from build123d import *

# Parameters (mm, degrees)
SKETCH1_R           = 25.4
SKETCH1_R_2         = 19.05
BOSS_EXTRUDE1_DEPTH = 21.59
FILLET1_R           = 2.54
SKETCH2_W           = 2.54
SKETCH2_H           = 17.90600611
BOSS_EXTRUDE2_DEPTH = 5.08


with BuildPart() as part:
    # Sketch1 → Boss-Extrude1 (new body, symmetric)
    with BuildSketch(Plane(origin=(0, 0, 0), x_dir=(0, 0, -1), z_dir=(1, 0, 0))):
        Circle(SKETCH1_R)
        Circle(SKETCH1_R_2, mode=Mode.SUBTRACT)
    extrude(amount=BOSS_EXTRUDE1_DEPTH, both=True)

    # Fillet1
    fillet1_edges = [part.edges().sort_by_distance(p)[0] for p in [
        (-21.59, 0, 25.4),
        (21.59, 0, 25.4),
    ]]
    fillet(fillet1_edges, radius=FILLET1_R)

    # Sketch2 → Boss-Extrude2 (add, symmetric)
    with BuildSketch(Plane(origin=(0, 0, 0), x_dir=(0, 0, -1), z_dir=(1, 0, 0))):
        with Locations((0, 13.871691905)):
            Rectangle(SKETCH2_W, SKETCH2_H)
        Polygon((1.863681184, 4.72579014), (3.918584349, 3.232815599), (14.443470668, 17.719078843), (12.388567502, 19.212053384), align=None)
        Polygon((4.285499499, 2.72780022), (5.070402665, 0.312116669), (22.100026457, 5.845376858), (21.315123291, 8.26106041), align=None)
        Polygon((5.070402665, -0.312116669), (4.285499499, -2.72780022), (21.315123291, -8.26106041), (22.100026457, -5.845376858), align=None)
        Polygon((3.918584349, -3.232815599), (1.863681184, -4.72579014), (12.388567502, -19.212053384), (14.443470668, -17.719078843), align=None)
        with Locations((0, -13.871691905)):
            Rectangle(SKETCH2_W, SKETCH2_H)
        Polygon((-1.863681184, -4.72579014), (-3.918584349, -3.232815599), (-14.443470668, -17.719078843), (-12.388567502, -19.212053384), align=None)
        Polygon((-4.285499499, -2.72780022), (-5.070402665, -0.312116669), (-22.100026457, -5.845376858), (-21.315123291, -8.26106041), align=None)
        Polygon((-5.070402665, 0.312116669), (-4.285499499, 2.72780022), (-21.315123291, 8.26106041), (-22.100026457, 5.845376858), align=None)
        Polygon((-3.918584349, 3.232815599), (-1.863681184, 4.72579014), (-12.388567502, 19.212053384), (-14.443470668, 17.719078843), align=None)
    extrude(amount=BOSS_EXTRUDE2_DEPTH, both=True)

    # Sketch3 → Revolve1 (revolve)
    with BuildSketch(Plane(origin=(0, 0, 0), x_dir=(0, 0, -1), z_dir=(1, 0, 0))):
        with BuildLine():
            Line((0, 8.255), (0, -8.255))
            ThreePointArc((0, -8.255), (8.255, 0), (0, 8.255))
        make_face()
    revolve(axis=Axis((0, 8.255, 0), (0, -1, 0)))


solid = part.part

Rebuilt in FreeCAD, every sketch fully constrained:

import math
import FreeCAD as App
import Part
import Sketcher
Q = App.Units.Quantity


def edges_at(feature, points):
    """Names of the edges that pass closest to the given points."""
    edges = feature.Shape.Edges
    near = lambda p: min(range(len(edges)), key=lambda i: edges[i].distToShape(Part.Vertex(*p))[0])
    return sorted({f"Edge{near(p) + 1}" for p in points})

doc = App.newDocument("Part")
body = doc.addObject("PartDesign::Body", "Body")

sketch1 = body.newObject("Sketcher::SketchObject", "Sketch")
sketch1.AttachmentSupport = (doc.getObject("YZ_Plane"), [""])
sketch1.MapMode = "FlatFace"
sketch1.addGeometry([
    Part.Circle(App.Vector(0, 0, 0), App.Vector(0, 0, 1), 25),
    Part.Circle(App.Vector(0, 0, 0), App.Vector(0, 0, 1), 19),
], False)
sketch1.addConstraint([
    Sketcher.Constraint("Coincident", 0, 3, -1, 1),
    Sketcher.Constraint("Coincident", 1, 3, -1, 1),
    Sketcher.Constraint("Diameter", 0, Q("2 in")),
    Sketcher.Constraint("Diameter", 1, Q("1.5 in")),
])
pad1 = body.newObject("PartDesign::Pad", "Pad")
pad1.Profile = sketch1
pad1.Length = Q("1.7 in")
pad1.Midplane = True
doc.recompute()

fillet = body.newObject("PartDesign::Fillet", "Fillet")
fillet.Base = (pad1, edges_at(pad1, [(-21.59, 0, 25.4), (21.59, 0, 25.4)]))
fillet.Radius = Q("0.1 in")

sketch2 = body.newObject("Sketcher::SketchObject", "Sketch001")
sketch2.AttachmentSupport = (doc.getObject("YZ_Plane"), [""])
sketch2.MapMode = "FlatFace"
sketch2.addGeometry([
    Part.LineSegment(App.Vector(22.8, 1.3, 0), App.Vector(4.9, 1.3, 0)),
    Part.LineSegment(App.Vector(4.9, 1.3, 0), App.Vector(4.9, -1.3, 0)),
    Part.LineSegment(App.Vector(4.9, -1.3, 0), App.Vector(22.8, -1.3, 0)),
    Part.LineSegment(App.Vector(22.8, -1.3, 0), App.Vector(22.8, 1.3, 0)),
    Part.LineSegment(App.Vector(4.7, -1.9, 0), App.Vector(3.2, -3.9, 0)),
    Part.LineSegment(App.Vector(3.2, -3.9, 0), App.Vector(17.7, -14.4, 0)),
    Part.LineSegment(App.Vector(17.7, -14.4, 0), App.Vector(19.2, -12.4, 0)),
    Part.LineSegment(App.Vector(19.2, -12.4, 0), App.Vector(4.7, -1.9, 0)),
    Part.LineSegment(App.Vector(2.7, -4.3, 0), App.Vector(0.3, -5.1, 0)),
    Part.LineSegment(App.Vector(0.3, -5.1, 0), App.Vector(5.8, -22.1, 0)),
    Part.LineSegment(App.Vector(5.8, -22.1, 0), App.Vector(8.3, -21.3, 0)),
    Part.LineSegment(App.Vector(8.3, -21.3, 0), App.Vector(2.7, -4.3, 0)),
    Part.LineSegment(App.Vector(-0.3, -5.1, 0), App.Vector(-2.7, -4.3, 0)),
    Part.LineSegment(App.Vector(-2.7, -4.3, 0), App.Vector(-8.3, -21.3, 0)),
    Part.LineSegment(App.Vector(-8.3, -21.3, 0), App.Vector(-5.8, -22.1, 0)),
    Part.LineSegment(App.Vector(-5.8, -22.1, 0), App.Vector(-0.3, -5.1, 0)),
    Part.LineSegment(App.Vector(-3.2, -3.9, 0), App.Vector(-4.7, -1.9, 0)),
    Part.LineSegment(App.Vector(-4.7, -1.9, 0), App.Vector(-19.2, -12.4, 0)),
    Part.LineSegment(App.Vector(-19.2, -12.4, 0), App.Vector(-17.7, -14.4, 0)),
    Part.LineSegment(App.Vector(-17.7, -14.4, 0), App.Vector(-3.2, -3.9, 0)),
    Part.LineSegment(App.Vector(-4.9, 1.3, 0), App.Vector(-22.8, 1.3, 0)),
    Part.LineSegment(App.Vector(-22.8, 1.3, 0), App.Vector(-22.8, -1.3, 0)),
    Part.LineSegment(App.Vector(-22.8, -1.3, 0), App.Vector(-4.9, -1.3, 0)),
    Part.LineSegment(App.Vector(-4.9, -1.3, 0), App.Vector(-4.9, 1.3, 0)),
    Part.LineSegment(App.Vector(-4.7, 1.9, 0), App.Vector(-3.2, 3.9, 0)),
    Part.LineSegment(App.Vector(-3.2, 3.9, 0), App.Vector(-17.7, 14.4, 0)),
    Part.LineSegment(App.Vector(-17.7, 14.4, 0), App.Vector(-19.2, 12.4, 0)),
    Part.LineSegment(App.Vector(-19.2, 12.4, 0), App.Vector(-4.7, 1.9, 0)),
    Part.LineSegment(App.Vector(-2.7, 4.3, 0), App.Vector(-0.3, 5.1, 0)),
    Part.LineSegment(App.Vector(-0.3, 5.1, 0), App.Vector(-5.8, 22.1, 0)),
    Part.LineSegment(App.Vector(-5.8, 22.1, 0), App.Vector(-8.3, 21.3, 0)),
    Part.LineSegment(App.Vector(-8.3, 21.3, 0), App.Vector(-2.7, 4.3, 0)),
    Part.LineSegment(App.Vector(0.3, 5.1, 0), App.Vector(2.7, 4.3, 0)),
    Part.LineSegment(App.Vector(2.7, 4.3, 0), App.Vector(8.3, 21.3, 0)),
    Part.LineSegment(App.Vector(8.3, 21.3, 0), App.Vector(5.8, 22.1, 0)),
    Part.LineSegment(App.Vector(5.8, 22.1, 0), App.Vector(0.3, 5.1, 0)),
    Part.LineSegment(App.Vector(3.2, 3.9, 0), App.Vector(4.7, 1.9, 0)),
    Part.LineSegment(App.Vector(4.7, 1.9, 0), App.Vector(19.2, 12.4, 0)),
    Part.LineSegment(App.Vector(19.2, 12.4, 0), App.Vector(17.7, 14.4, 0)),
    Part.LineSegment(App.Vector(17.7, 14.4, 0), App.Vector(3.2, 3.9, 0)),
], False)
sketch2.addConstraint([
    Sketcher.Constraint("Coincident", 0, 2, 1, 1),
    Sketcher.Constraint("Coincident", 1, 2, 2, 1),
    Sketcher.Constraint("Coincident", 2, 2, 3, 1),
    Sketcher.Constraint("Coincident", 3, 2, 0, 1),
    Sketcher.Constraint("Coincident", 4, 2, 5, 1),
    Sketcher.Constraint("Coincident", 5, 2, 6, 1),
    Sketcher.Constraint("Coincident", 6, 2, 7, 1),
    Sketcher.Constraint("Coincident", 7, 2, 4, 1),
    Sketcher.Constraint("Coincident", 8, 2, 9, 1),
    Sketcher.Constraint("Coincident", 9, 2, 10, 1),
    Sketcher.Constraint("Coincident", 10, 2, 11, 1),
    Sketcher.Constraint("Coincident", 11, 2, 8, 1),
    Sketcher.Constraint("Coincident", 12, 2, 13, 1),
    Sketcher.Constraint("Coincident", 13, 2, 14, 1),
    Sketcher.Constraint("Coincident", 14, 2, 15, 1),
    Sketcher.Constraint("Coincident", 15, 2, 12, 1),
    Sketcher.Constraint("Coincident", 16, 2, 17, 1),
    Sketcher.Constraint("Coincident", 17, 2, 18, 1),
    Sketcher.Constraint("Coincident", 18, 2, 19, 1),
    Sketcher.Constraint("Coincident", 19, 2, 16, 1),
    Sketcher.Constraint("Coincident", 20, 2, 21, 1),
    Sketcher.Constraint("Coincident", 21, 2, 22, 1),
    Sketcher.Constraint("Coincident", 22, 2, 23, 1),
    Sketcher.Constraint("Coincident", 23, 2, 20, 1),
    Sketcher.Constraint("Coincident", 24, 2, 25, 1),
    Sketcher.Constraint("Coincident", 25, 2, 26, 1),
    Sketcher.Constraint("Coincident", 26, 2, 27, 1),
    Sketcher.Constraint("Coincident", 27, 2, 24, 1),
    Sketcher.Constraint("Coincident", 28, 2, 29, 1),
    Sketcher.Constraint("Coincident", 29, 2, 30, 1),
    Sketcher.Constraint("Coincident", 30, 2, 31, 1),
    Sketcher.Constraint("Coincident", 31, 2, 28, 1),
    Sketcher.Constraint("Coincident", 32, 2, 33, 1),
    Sketcher.Constraint("Coincident", 33, 2, 34, 1),
    Sketcher.Constraint("Coincident", 34, 2, 35, 1),
    Sketcher.Constraint("Coincident", 35, 2, 32, 1),
    Sketcher.Constraint("Coincident", 36, 2, 37, 1),
    Sketcher.Constraint("Coincident", 37, 2, 38, 1),
    Sketcher.Constraint("Coincident", 38, 2, 39, 1),
    Sketcher.Constraint("Coincident", 39, 2, 36, 1),
    Sketcher.Constraint("Horizontal", 0),
    Sketcher.Constraint("Vertical", 1),
    Sketcher.Constraint("Horizontal", 2),
    Sketcher.Constraint("Vertical", 3),
    Sketcher.Constraint("Horizontal", 20),
    Sketcher.Constraint("Vertical", 21),
    Sketcher.Constraint("Horizontal", 22),
    Sketcher.Constraint("Vertical", 23),
    Sketcher.Constraint("Symmetric", 2, 2, 20, 2, -1, 1),
    Sketcher.Constraint("Symmetric", 0, 2, 22, 2, -1, 1),
    Sketcher.Constraint("Symmetric", 4, 2, 24, 2, -1, 1),
    Sketcher.Constraint("Symmetric", 5, 2, 25, 2, -1, 1),
    Sketcher.Constraint("Symmetric", 6, 2, 26, 2, -1, 1),
    Sketcher.Constraint("Symmetric", 7, 2, 27, 2, -1, 1),
    Sketcher.Constraint("Symmetric", 8, 2, 28, 2, -1, 1),
    Sketcher.Constraint("Symmetric", 9, 2, 29, 2, -1, 1),
    Sketcher.Constraint("Symmetric", 10, 2, 30, 2, -1, 1),
    Sketcher.Constraint("Symmetric", 11, 2, 31, 2, -1, 1),
    Sketcher.Constraint("Symmetric", 12, 2, 32, 2, -1, 1),
    Sketcher.Constraint("Symmetric", 13, 2, 33, 2, -1, 1),
    Sketcher.Constraint("Symmetric", 14, 2, 34, 2, -1, 1),
    Sketcher.Constraint("Symmetric", 15, 2, 35, 2, -1, 1),
    Sketcher.Constraint("Symmetric", 16, 2, 36, 2, -1, 1),
    Sketcher.Constraint("Symmetric", 17, 2, 37, 2, -1, 1),
    Sketcher.Constraint("Symmetric", 18, 2, 38, 2, -1, 1),
    Sketcher.Constraint("Symmetric", 19, 2, 39, 2, -1, 1),
    Sketcher.Constraint("Symmetric", 11, 2, 12, 2, -2),
    Sketcher.Constraint("Symmetric", 10, 2, 13, 2, -2),
    Sketcher.Constraint("Symmetric", 9, 2, 14, 2, -2),
    Sketcher.Constraint("Symmetric", 8, 2, 15, 2, -2),
    Sketcher.Constraint("Symmetric", 7, 2, 16, 2, -2),
    Sketcher.Constraint("Symmetric", 6, 2, 17, 2, -2),
    Sketcher.Constraint("Symmetric", 5, 2, 18, 2, -2),
    Sketcher.Constraint("Symmetric", 4, 2, 19, 2, -2),
    Sketcher.Constraint("Perpendicular", 4, 5),
    Sketcher.Constraint("Perpendicular", 5, 6),
    Sketcher.Constraint("Perpendicular", 6, 7),
    Sketcher.Constraint("Perpendicular", 8, 9),
    Sketcher.Constraint("Perpendicular", 9, 10),
    Sketcher.Constraint("Perpendicular", 10, 11),
    Sketcher.Constraint("Horizontal", 3, 2, 20, 2),
    Sketcher.Constraint("Equal", 6, 8),
    Sketcher.Constraint("Equal", 7, 9),
    Sketcher.Constraint("DistanceY", 1, 2, 1, 1, Q("0.1 in")),
    Sketcher.Constraint("Angle", 4, Q("-126 deg")),
    Sketcher.Constraint("Angle", 8, Q("-162 deg")),
    Sketcher.Constraint("Distance", 4, Q("0.1 in")),
    Sketcher.Constraint("DistanceX", -1, 1, 11, 2, Q("2.7278 mm")),
    Sketcher.Constraint("DistanceY", 11, 2, -1, 1, Q("4.285499 mm")),
    Sketcher.Constraint("DistanceX", 7, 2, 1, 2, Q("0.192899 mm")),
    Sketcher.Constraint("DistanceX", 8, 2, 4, 2, Q("2.920699 mm")),
    Sketcher.Constraint("DistanceX", 9, 2, 5, 2, Q("11.873702 mm")),
    Sketcher.Constraint("DistanceX", 0, 2, 0, 1, Q("17.906006 mm")),
    Sketcher.Constraint("DistanceY", 5, 2, -1, 1, Q("14.443471 mm")),
])
pad2 = body.newObject("PartDesign::Pad", "Pad001")
pad2.Profile = sketch2
pad2.Length = Q("0.4 in")
pad2.Midplane = True

sketch3 = body.newObject("Sketcher::SketchObject", "Sketch002")
sketch3.AttachmentSupport = (doc.getObject("YZ_Plane"), [""])
sketch3.MapMode = "FlatFace"
sketch3.addGeometry([
    Part.LineSegment(App.Vector(8, 0, 0), App.Vector(-8, 0, 0)),
    Part.ArcOfCircle(Part.Circle(App.Vector(0, 0, 0), App.Vector(0, 0, 1), 8), math.radians(180), math.radians(360)),
], False)
sketch3.addConstraint([
    Sketcher.Constraint("Coincident", 0, 1, 1, 2),
    Sketcher.Constraint("Coincident", 1, 1, 0, 2),
    Sketcher.Constraint("Horizontal", 0),
    Sketcher.Constraint("Coincident", 1, 3, -1, 1),
    Sketcher.Constraint("PointOnObject", 0, 1, -1),
    Sketcher.Constraint("Radius", 1, Q("0.325 in")),
])
revolution = body.newObject("PartDesign::Revolution", "Revolution")
revolution.Profile = sketch3
revolution.ReferenceAxis = (sketch3, ["H_Axis"])
revolution.Angle = 360

doc.recompute()
